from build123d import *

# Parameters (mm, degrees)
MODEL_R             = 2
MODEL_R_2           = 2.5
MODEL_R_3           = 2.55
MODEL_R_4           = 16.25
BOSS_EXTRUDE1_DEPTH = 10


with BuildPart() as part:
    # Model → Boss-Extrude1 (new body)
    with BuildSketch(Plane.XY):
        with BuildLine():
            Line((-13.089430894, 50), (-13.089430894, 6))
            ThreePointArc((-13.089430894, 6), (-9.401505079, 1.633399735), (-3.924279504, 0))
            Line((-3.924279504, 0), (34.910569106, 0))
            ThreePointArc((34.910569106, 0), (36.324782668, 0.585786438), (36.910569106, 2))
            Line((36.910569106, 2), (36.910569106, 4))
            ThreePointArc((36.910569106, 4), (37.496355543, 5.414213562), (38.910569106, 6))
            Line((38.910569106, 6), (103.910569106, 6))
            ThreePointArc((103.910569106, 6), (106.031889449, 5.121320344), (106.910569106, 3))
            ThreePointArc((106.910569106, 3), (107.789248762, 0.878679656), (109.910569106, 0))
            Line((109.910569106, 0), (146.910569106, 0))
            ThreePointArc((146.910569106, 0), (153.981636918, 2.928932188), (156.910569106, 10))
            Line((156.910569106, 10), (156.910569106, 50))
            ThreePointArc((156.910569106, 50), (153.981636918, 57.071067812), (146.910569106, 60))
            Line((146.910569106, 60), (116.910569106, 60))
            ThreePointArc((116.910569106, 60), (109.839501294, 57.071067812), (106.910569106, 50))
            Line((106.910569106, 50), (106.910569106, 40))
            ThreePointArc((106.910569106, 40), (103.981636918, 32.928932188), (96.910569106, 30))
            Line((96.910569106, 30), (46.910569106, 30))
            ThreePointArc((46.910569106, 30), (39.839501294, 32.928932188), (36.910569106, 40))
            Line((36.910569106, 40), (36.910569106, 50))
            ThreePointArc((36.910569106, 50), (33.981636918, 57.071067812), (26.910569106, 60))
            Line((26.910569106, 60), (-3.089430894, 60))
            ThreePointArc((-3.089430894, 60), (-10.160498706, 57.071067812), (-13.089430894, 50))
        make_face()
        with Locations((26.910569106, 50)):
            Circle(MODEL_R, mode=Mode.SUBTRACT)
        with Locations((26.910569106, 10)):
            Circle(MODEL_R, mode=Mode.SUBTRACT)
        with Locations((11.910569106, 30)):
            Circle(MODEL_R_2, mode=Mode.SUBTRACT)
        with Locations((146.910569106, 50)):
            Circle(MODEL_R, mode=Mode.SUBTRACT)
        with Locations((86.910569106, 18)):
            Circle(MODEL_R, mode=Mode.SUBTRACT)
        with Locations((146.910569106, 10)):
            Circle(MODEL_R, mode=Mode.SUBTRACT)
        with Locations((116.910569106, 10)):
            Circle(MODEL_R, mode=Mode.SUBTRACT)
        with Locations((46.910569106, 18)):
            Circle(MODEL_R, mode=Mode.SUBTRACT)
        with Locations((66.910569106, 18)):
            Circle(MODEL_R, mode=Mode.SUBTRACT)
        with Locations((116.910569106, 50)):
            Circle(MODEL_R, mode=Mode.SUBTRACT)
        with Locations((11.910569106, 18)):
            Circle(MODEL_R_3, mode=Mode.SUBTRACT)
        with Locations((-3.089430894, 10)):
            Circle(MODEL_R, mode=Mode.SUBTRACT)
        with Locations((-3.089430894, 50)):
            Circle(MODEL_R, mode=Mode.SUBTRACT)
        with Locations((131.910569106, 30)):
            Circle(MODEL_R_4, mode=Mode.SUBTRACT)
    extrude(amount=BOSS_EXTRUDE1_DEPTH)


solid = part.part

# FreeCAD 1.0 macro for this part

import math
import FreeCAD as App
import Part
import Sketcher
from FreeCAD import Vector
Q = App.Units.Quantity

doc = App.newDocument("Part")
body = doc.addObject("PartDesign::Body", "Body")

# Sketch on XY plane
sketch1 = body.newObject("Sketcher::SketchObject", "Sketch")
sketch1.AttachmentSupport = (doc.getObject("XY_Plane"), [""])
sketch1.MapMode = "FlatFace"
sketch1.addGeometry(Part.LineSegment(Vector(-13.1, 50, 0), Vector(-13.1, 6, 0)), False)
sketch1.addGeometry(Part.ArcOfCircle(Part.Circle(Vector(-3.9, 10, 0), Vector(0, 0, 1), 10), math.radians(-156), math.radians(-90)), False)
sketch1.addGeometry(Part.LineSegment(Vector(-3.9, 0, 0), Vector(34.9, 0, 0)), False)
sketch1.addGeometry(Part.ArcOfCircle(Part.Circle(Vector(34.9, 2, 0), Vector(0, 0, 1), 2), math.radians(-90), math.radians(0)), False)
sketch1.addGeometry(Part.LineSegment(Vector(36.9, 2, 0), Vector(36.9, 4, 0)), False)
sketch1.addGeometry(Part.ArcOfCircle(Part.Circle(Vector(38.9, 4, 0), Vector(0, 0, 1), 2), math.radians(90), math.radians(180)), False)
sketch1.addGeometry(Part.LineSegment(Vector(38.9, 6, 0), Vector(103.9, 6, 0)), False)
sketch1.addGeometry(Part.ArcOfCircle(Part.Circle(Vector(103.9, 3, 0), Vector(0, 0, 1), 3), math.radians(0), math.radians(90)), False)
sketch1.addGeometry(Part.ArcOfCircle(Part.Circle(Vector(109.9, 3, 0), Vector(0, 0, 1), 3), math.radians(180), math.radians(270)), False)
sketch1.addGeometry(Part.LineSegment(Vector(109.9, 0, 0), Vector(146.9, 0, 0)), False)
sketch1.addGeometry(Part.ArcOfCircle(Part.Circle(Vector(146.9, 10, 0), Vector(0, 0, 1), 10), math.radians(-90), math.radians(0)), False)
sketch1.addGeometry(Part.LineSegment(Vector(156.9, 10, 0), Vector(156.9, 50, 0)), False)
sketch1.addGeometry(Part.ArcOfCircle(Part.Circle(Vector(146.9, 50, 0), Vector(0, 0, 1), 10), math.radians(0), math.radians(90)), False)
sketch1.addGeometry(Part.LineSegment(Vector(146.9, 60, 0), Vector(116.9, 60, 0)), False)
sketch1.addGeometry(Part.ArcOfCircle(Part.Circle(Vector(116.9, 50, 0), Vector(0, 0, 1), 10), math.radians(90), math.radians(180)), False)
sketch1.addGeometry(Part.LineSegment(Vector(106.9, 50, 0), Vector(106.9, 40, 0)), False)
sketch1.addGeometry(Part.ArcOfCircle(Part.Circle(Vector(96.9, 40, 0), Vector(0, 0, 1), 10), math.radians(-90), math.radians(0)), False)
sketch1.addGeometry(Part.LineSegment(Vector(96.9, 30, 0), Vector(46.9, 30, 0)), False)
sketch1.addGeometry(Part.ArcOfCircle(Part.Circle(Vector(46.9, 40, 0), Vector(0, 0, 1), 10), math.radians(180), math.radians(270)), False)
sketch1.addGeometry(Part.LineSegment(Vector(36.9, 40, 0), Vector(36.9, 50, 0)), False)
sketch1.addGeometry(Part.ArcOfCircle(Part.Circle(Vector(26.9, 50, 0), Vector(0, 0, 1), 10), math.radians(0), math.radians(90)), False)
sketch1.addGeometry(Part.LineSegment(Vector(26.9, 60, 0), Vector(-3.1, 60, 0)), False)
sketch1.addGeometry(Part.ArcOfCircle(Part.Circle(Vector(-3.1, 50, 0), Vector(0, 0, 1), 10), math.radians(90), math.radians(180)), False)
sketch1.addGeometry(Part.Circle(Vector(-3.1, 10, 0), Vector(0, 0, 1), 2), False)
sketch1.addGeometry(Part.Circle(Vector(26.9, 10, 0), Vector(0, 0, 1), 2), False)
sketch1.addGeometry(Part.Circle(Vector(11.9, 18, 0), Vector(0, 0, 1), 2.5), False)
sketch1.addGeometry(Part.Circle(Vector(46.9, 18, 0), Vector(0, 0, 1), 2), False)
sketch1.addGeometry(Part.Circle(Vector(66.9, 18, 0), Vector(0, 0, 1), 2), False)
sketch1.addGeometry(Part.Circle(Vector(86.9, 18, 0), Vector(0, 0, 1), 2), False)
sketch1.addGeometry(Part.Circle(Vector(116.9, 10, 0), Vector(0, 0, 1), 2), False)
sketch1.addGeometry(Part.Circle(Vector(146.9, 10, 0), Vector(0, 0, 1), 2), False)
sketch1.addGeometry(Part.Circle(Vector(11.9, 30, 0), Vector(0, 0, 1), 2.5), False)
sketch1.addGeometry(Part.Circle(Vector(-3.1, 50, 0), Vector(0, 0, 1), 2), False)
sketch1.addGeometry(Part.Circle(Vector(26.9, 50, 0), Vector(0, 0, 1), 2), False)
sketch1.addGeometry(Part.Circle(Vector(131.9, 30, 0), Vector(0, 0, 1), 16.2), False)
sketch1.addGeometry(Part.Circle(Vector(116.9, 50, 0), Vector(0, 0, 1), 2), False)
sketch1.addGeometry(Part.Circle(Vector(146.9, 50, 0), Vector(0, 0, 1), 2), False)
sketch1.addConstraint(Sketcher.Constraint("Coincident", 0, 2, 1, 1))
sketch1.addConstraint(Sketcher.Constraint("Tangent", 1, 2, 2, 1))
sketch1.addConstraint(Sketcher.Constraint("Tangent", 2, 2, 3, 1))
sketch1.addConstraint(Sketcher.Constraint("Tangent", 3, 2, 4, 1))
sketch1.addConstraint(Sketcher.Constraint("Tangent", 4, 2, 5, 2))
sketch1.addConstraint(Sketcher.Constraint("Tangent", 5, 1, 6, 1))
sketch1.addConstraint(Sketcher.Constraint("Tangent", 6, 2, 7, 2))
sketch1.addConstraint(Sketcher.Constraint("Tangent", 7, 1, 8, 1))
sketch1.addConstraint(Sketcher.Constraint("Tangent", 8, 2, 9, 1))
sketch1.addConstraint(Sketcher.Constraint("Tangent", 9, 2, 10, 1))
sketch1.addConstraint(Sketcher.Constraint("Tangent", 10, 2, 11, 1))
sketch1.addConstraint(Sketcher.Constraint("Tangent", 11, 2, 12, 1))
sketch1.addConstraint(Sketcher.Constraint("Tangent", 12, 2, 13, 1))
sketch1.addConstraint(Sketcher.Constraint("Tangent", 13, 2, 14, 1))
sketch1.addConstraint(Sketcher.Constraint("Tangent", 14, 2, 15, 1))
sketch1.addConstraint(Sketcher.Constraint("Tangent", 15, 2, 16, 2))
sketch1.addConstraint(Sketcher.Constraint("Tangent", 16, 1, 17, 1))
sketch1.addConstraint(Sketcher.Constraint("Tangent", 17, 2, 18, 2))
sketch1.addConstraint(Sketcher.Constraint("Tangent", 18, 1, 19, 1))
sketch1.addConstraint(Sketcher.Constraint("Tangent", 19, 2, 20, 1))
sketch1.addConstraint(Sketcher.Constraint("Tangent", 20, 2, 21, 1))
sketch1.addConstraint(Sketcher.Constraint("Tangent", 21, 2, 22, 1))
sketch1.addConstraint(Sketcher.Constraint("Tangent", 22, 2, 0, 1))
sketch1.addConstraint(Sketcher.Constraint("Vertical", 0))
sketch1.addConstraint(Sketcher.Constraint("Horizontal", 2))
sketch1.addConstraint(Sketcher.Constraint("Vertical", 4))
sketch1.addConstraint(Sketcher.Constraint("Horizontal", 6))
sketch1.addConstraint(Sketcher.Constraint("Horizontal", 9))
sketch1.addConstraint(Sketcher.Constraint("Vertical", 11))
sketch1.addConstraint(Sketcher.Constraint("Horizontal", 13))
sketch1.addConstraint(Sketcher.Constraint("Vertical", 15))
sketch1.addConstraint(Sketcher.Constraint("Horizontal", 17))
sketch1.addConstraint(Sketcher.Constraint("Vertical", 19))
sketch1.addConstraint(Sketcher.Constraint("Horizontal", 21))
sketch1.addConstraint(Sketcher.Constraint("Coincident", 30, 3, 10, 3))
sketch1.addConstraint(Sketcher.Constraint("Coincident", 32, 3, 22, 3))
sketch1.addConstraint(Sketcher.Constraint("Coincident", 33, 3, 20, 3))
sketch1.addConstraint(Sketcher.Constraint("Coincident", 35, 3, 14, 3))
sketch1.addConstraint(Sketcher.Constraint("Coincident", 36, 3, 12, 3))
sketch1.addConstraint(Sketcher.Constraint("Equal", 3, 5))
sketch1.addConstraint(Sketcher.Constraint("Equal", 7, 8))
sketch1.addConstraint(Sketcher.Constraint("Equal", 1, 10))
sketch1.addConstraint(Sketcher.Constraint("Equal", 10, 12))
sketch1.addConstraint(Sketcher.Constraint("Equal", 12, 14))
sketch1.addConstraint(Sketcher.Constraint("Equal", 14, 16))
sketch1.addConstraint(Sketcher.Constraint("Equal", 16, 18))
sketch1.addConstraint(Sketcher.Constraint("Equal", 18, 20))
sketch1.addConstraint(Sketcher.Constraint("Equal", 20, 22))
sketch1.addConstraint(Sketcher.Constraint("Equal", 5, 23))
sketch1.addConstraint(Sketcher.Constraint("Equal", 23, 24))
sketch1.addConstraint(Sketcher.Constraint("Equal", 24, 26))
sketch1.addConstraint(Sketcher.Constraint("Equal", 26, 27))
sketch1.addConstraint(Sketcher.Constraint("Equal", 27, 28))
sketch1.addConstraint(Sketcher.Constraint("Equal", 28, 29))
sketch1.addConstraint(Sketcher.Constraint("Equal", 29, 30))
sketch1.addConstraint(Sketcher.Constraint("Equal", 30, 32))
sketch1.addConstraint(Sketcher.Constraint("Equal", 32, 33))
sketch1.addConstraint(Sketcher.Constraint("Equal", 33, 35))
sketch1.addConstraint(Sketcher.Constraint("Equal", 35, 36))
sketch1.addConstraint(Sketcher.Constraint("PointOnObject", 1, 2, -1))
sketch1.addConstraint(Sketcher.Constraint("PointOnObject", 8, 2, -1))
sketch1.addConstraint(Sketcher.Constraint("Horizontal", 7, 3, 8, 3))
sketch1.addConstraint(Sketcher.Constraint("Horizontal", 14, 3, 20, 3))
sketch1.addConstraint(Sketcher.Constraint("Horizontal", 10, 3, 23, 3))
sketch1.addConstraint(Sketcher.Constraint("Horizontal", 23, 3, 24, 3))
sketch1.addConstraint(Sketcher.Constraint("Horizontal", 25, 3, 26, 3))
sketch1.addConstraint(Sketcher.Constraint("Horizontal", 26, 3, 27, 3))
sketch1.addConstraint(Sketcher.Constraint("Horizontal", 27, 3, 28, 3))
sketch1.addConstraint(Sketcher.Constraint("Horizontal", 24, 3, 29, 3))
sketch1.addConstraint(Sketcher.Constraint("Horizontal", 31, 3, 34, 3))
sketch1.addConstraint(Sketcher.Constraint("Horizontal", 0, 2, 5, 1))
sketch1.addConstraint(Sketcher.Constraint("Horizontal", 34, 3, 16, 1))
sketch1.addConstraint(Sketcher.Constraint("Vertical", 22, 3, 23, 3))
sketch1.addConstraint(Sketcher.Constraint("Vertical", 20, 3, 24, 3))
sketch1.addConstraint(Sketcher.Constraint("Vertical", 18, 3, 26, 3))
sketch1.addConstraint(Sketcher.Constraint("Vertical", 14, 3, 29, 3))
sketch1.addConstraint(Sketcher.Constraint("Vertical", 25, 3, 31, 3))
sketch1.addConstraint(Sketcher.Constraint("Vertical", 7, 1, 14, 2))
sketch1.addConstraint(Sketcher.Constraint("Vertical", 4, 2, 18, 1))
sketch1.addConstraint(Sketcher.Constraint("Equal", 13, 21))
sketch1.addConstraint(Sketcher.Constraint("Diameter", 23, Q("4 mm")))
sketch1.addConstraint(Sketcher.Constraint("Diameter", 31, Q("5 mm")))
sketch1.addConstraint(Sketcher.Constraint("Radius", 1, Q("10 mm")))
sketch1.addConstraint(Sketcher.Constraint("Radius", 7, Q("3 mm")))
sketch1.addConstraint(Sketcher.Constraint("Diameter", 25, Q("5.1 mm")))
sketch1.addConstraint(Sketcher.Constraint("Diameter", 34, Q("32.5 mm")))
sketch1.addConstraint(Sketcher.Constraint("DistanceX", 6, 1, 6, 2, Q("65 mm")))
sketch1.addConstraint(Sketcher.Constraint("DistanceX", 9, 1, 9, 2, Q("37 mm")))
sketch1.addConstraint(Sketcher.Constraint("DistanceY", 0, 2, 0, 1, Q("44 mm")))
sketch1.addConstraint(Sketcher.Constraint("DistanceY", 15, 2, 15, 1, Q("10 mm")))
sketch1.addConstraint(Sketcher.Constraint("DistanceY", -1, 1, 25, 3, Q("18 mm")))
sketch1.addConstraint(Sketcher.Constraint("DistanceX", 23, 3, 25, 3, Q("15 mm")))
sketch1.addConstraint(Sketcher.Constraint("DistanceX", 26, 3, 27, 3, Q("20 mm")))
sketch1.addConstraint(Sketcher.Constraint("DistanceX", 27, 3, 28, 3, Q("20 mm")))
sketch1.addConstraint(Sketcher.Constraint("DistanceX", 34, 3, 10, 3, Q("15 mm")))
sketch1.addConstraint(Sketcher.Constraint("DistanceX", 1, 3, -1, 1, Q("3.92428 mm")))
pad1 = body.newObject("PartDesign::Pad", "Pad")
pad1.Profile = sketch1
pad1.Length = 10

doc.recompute()
